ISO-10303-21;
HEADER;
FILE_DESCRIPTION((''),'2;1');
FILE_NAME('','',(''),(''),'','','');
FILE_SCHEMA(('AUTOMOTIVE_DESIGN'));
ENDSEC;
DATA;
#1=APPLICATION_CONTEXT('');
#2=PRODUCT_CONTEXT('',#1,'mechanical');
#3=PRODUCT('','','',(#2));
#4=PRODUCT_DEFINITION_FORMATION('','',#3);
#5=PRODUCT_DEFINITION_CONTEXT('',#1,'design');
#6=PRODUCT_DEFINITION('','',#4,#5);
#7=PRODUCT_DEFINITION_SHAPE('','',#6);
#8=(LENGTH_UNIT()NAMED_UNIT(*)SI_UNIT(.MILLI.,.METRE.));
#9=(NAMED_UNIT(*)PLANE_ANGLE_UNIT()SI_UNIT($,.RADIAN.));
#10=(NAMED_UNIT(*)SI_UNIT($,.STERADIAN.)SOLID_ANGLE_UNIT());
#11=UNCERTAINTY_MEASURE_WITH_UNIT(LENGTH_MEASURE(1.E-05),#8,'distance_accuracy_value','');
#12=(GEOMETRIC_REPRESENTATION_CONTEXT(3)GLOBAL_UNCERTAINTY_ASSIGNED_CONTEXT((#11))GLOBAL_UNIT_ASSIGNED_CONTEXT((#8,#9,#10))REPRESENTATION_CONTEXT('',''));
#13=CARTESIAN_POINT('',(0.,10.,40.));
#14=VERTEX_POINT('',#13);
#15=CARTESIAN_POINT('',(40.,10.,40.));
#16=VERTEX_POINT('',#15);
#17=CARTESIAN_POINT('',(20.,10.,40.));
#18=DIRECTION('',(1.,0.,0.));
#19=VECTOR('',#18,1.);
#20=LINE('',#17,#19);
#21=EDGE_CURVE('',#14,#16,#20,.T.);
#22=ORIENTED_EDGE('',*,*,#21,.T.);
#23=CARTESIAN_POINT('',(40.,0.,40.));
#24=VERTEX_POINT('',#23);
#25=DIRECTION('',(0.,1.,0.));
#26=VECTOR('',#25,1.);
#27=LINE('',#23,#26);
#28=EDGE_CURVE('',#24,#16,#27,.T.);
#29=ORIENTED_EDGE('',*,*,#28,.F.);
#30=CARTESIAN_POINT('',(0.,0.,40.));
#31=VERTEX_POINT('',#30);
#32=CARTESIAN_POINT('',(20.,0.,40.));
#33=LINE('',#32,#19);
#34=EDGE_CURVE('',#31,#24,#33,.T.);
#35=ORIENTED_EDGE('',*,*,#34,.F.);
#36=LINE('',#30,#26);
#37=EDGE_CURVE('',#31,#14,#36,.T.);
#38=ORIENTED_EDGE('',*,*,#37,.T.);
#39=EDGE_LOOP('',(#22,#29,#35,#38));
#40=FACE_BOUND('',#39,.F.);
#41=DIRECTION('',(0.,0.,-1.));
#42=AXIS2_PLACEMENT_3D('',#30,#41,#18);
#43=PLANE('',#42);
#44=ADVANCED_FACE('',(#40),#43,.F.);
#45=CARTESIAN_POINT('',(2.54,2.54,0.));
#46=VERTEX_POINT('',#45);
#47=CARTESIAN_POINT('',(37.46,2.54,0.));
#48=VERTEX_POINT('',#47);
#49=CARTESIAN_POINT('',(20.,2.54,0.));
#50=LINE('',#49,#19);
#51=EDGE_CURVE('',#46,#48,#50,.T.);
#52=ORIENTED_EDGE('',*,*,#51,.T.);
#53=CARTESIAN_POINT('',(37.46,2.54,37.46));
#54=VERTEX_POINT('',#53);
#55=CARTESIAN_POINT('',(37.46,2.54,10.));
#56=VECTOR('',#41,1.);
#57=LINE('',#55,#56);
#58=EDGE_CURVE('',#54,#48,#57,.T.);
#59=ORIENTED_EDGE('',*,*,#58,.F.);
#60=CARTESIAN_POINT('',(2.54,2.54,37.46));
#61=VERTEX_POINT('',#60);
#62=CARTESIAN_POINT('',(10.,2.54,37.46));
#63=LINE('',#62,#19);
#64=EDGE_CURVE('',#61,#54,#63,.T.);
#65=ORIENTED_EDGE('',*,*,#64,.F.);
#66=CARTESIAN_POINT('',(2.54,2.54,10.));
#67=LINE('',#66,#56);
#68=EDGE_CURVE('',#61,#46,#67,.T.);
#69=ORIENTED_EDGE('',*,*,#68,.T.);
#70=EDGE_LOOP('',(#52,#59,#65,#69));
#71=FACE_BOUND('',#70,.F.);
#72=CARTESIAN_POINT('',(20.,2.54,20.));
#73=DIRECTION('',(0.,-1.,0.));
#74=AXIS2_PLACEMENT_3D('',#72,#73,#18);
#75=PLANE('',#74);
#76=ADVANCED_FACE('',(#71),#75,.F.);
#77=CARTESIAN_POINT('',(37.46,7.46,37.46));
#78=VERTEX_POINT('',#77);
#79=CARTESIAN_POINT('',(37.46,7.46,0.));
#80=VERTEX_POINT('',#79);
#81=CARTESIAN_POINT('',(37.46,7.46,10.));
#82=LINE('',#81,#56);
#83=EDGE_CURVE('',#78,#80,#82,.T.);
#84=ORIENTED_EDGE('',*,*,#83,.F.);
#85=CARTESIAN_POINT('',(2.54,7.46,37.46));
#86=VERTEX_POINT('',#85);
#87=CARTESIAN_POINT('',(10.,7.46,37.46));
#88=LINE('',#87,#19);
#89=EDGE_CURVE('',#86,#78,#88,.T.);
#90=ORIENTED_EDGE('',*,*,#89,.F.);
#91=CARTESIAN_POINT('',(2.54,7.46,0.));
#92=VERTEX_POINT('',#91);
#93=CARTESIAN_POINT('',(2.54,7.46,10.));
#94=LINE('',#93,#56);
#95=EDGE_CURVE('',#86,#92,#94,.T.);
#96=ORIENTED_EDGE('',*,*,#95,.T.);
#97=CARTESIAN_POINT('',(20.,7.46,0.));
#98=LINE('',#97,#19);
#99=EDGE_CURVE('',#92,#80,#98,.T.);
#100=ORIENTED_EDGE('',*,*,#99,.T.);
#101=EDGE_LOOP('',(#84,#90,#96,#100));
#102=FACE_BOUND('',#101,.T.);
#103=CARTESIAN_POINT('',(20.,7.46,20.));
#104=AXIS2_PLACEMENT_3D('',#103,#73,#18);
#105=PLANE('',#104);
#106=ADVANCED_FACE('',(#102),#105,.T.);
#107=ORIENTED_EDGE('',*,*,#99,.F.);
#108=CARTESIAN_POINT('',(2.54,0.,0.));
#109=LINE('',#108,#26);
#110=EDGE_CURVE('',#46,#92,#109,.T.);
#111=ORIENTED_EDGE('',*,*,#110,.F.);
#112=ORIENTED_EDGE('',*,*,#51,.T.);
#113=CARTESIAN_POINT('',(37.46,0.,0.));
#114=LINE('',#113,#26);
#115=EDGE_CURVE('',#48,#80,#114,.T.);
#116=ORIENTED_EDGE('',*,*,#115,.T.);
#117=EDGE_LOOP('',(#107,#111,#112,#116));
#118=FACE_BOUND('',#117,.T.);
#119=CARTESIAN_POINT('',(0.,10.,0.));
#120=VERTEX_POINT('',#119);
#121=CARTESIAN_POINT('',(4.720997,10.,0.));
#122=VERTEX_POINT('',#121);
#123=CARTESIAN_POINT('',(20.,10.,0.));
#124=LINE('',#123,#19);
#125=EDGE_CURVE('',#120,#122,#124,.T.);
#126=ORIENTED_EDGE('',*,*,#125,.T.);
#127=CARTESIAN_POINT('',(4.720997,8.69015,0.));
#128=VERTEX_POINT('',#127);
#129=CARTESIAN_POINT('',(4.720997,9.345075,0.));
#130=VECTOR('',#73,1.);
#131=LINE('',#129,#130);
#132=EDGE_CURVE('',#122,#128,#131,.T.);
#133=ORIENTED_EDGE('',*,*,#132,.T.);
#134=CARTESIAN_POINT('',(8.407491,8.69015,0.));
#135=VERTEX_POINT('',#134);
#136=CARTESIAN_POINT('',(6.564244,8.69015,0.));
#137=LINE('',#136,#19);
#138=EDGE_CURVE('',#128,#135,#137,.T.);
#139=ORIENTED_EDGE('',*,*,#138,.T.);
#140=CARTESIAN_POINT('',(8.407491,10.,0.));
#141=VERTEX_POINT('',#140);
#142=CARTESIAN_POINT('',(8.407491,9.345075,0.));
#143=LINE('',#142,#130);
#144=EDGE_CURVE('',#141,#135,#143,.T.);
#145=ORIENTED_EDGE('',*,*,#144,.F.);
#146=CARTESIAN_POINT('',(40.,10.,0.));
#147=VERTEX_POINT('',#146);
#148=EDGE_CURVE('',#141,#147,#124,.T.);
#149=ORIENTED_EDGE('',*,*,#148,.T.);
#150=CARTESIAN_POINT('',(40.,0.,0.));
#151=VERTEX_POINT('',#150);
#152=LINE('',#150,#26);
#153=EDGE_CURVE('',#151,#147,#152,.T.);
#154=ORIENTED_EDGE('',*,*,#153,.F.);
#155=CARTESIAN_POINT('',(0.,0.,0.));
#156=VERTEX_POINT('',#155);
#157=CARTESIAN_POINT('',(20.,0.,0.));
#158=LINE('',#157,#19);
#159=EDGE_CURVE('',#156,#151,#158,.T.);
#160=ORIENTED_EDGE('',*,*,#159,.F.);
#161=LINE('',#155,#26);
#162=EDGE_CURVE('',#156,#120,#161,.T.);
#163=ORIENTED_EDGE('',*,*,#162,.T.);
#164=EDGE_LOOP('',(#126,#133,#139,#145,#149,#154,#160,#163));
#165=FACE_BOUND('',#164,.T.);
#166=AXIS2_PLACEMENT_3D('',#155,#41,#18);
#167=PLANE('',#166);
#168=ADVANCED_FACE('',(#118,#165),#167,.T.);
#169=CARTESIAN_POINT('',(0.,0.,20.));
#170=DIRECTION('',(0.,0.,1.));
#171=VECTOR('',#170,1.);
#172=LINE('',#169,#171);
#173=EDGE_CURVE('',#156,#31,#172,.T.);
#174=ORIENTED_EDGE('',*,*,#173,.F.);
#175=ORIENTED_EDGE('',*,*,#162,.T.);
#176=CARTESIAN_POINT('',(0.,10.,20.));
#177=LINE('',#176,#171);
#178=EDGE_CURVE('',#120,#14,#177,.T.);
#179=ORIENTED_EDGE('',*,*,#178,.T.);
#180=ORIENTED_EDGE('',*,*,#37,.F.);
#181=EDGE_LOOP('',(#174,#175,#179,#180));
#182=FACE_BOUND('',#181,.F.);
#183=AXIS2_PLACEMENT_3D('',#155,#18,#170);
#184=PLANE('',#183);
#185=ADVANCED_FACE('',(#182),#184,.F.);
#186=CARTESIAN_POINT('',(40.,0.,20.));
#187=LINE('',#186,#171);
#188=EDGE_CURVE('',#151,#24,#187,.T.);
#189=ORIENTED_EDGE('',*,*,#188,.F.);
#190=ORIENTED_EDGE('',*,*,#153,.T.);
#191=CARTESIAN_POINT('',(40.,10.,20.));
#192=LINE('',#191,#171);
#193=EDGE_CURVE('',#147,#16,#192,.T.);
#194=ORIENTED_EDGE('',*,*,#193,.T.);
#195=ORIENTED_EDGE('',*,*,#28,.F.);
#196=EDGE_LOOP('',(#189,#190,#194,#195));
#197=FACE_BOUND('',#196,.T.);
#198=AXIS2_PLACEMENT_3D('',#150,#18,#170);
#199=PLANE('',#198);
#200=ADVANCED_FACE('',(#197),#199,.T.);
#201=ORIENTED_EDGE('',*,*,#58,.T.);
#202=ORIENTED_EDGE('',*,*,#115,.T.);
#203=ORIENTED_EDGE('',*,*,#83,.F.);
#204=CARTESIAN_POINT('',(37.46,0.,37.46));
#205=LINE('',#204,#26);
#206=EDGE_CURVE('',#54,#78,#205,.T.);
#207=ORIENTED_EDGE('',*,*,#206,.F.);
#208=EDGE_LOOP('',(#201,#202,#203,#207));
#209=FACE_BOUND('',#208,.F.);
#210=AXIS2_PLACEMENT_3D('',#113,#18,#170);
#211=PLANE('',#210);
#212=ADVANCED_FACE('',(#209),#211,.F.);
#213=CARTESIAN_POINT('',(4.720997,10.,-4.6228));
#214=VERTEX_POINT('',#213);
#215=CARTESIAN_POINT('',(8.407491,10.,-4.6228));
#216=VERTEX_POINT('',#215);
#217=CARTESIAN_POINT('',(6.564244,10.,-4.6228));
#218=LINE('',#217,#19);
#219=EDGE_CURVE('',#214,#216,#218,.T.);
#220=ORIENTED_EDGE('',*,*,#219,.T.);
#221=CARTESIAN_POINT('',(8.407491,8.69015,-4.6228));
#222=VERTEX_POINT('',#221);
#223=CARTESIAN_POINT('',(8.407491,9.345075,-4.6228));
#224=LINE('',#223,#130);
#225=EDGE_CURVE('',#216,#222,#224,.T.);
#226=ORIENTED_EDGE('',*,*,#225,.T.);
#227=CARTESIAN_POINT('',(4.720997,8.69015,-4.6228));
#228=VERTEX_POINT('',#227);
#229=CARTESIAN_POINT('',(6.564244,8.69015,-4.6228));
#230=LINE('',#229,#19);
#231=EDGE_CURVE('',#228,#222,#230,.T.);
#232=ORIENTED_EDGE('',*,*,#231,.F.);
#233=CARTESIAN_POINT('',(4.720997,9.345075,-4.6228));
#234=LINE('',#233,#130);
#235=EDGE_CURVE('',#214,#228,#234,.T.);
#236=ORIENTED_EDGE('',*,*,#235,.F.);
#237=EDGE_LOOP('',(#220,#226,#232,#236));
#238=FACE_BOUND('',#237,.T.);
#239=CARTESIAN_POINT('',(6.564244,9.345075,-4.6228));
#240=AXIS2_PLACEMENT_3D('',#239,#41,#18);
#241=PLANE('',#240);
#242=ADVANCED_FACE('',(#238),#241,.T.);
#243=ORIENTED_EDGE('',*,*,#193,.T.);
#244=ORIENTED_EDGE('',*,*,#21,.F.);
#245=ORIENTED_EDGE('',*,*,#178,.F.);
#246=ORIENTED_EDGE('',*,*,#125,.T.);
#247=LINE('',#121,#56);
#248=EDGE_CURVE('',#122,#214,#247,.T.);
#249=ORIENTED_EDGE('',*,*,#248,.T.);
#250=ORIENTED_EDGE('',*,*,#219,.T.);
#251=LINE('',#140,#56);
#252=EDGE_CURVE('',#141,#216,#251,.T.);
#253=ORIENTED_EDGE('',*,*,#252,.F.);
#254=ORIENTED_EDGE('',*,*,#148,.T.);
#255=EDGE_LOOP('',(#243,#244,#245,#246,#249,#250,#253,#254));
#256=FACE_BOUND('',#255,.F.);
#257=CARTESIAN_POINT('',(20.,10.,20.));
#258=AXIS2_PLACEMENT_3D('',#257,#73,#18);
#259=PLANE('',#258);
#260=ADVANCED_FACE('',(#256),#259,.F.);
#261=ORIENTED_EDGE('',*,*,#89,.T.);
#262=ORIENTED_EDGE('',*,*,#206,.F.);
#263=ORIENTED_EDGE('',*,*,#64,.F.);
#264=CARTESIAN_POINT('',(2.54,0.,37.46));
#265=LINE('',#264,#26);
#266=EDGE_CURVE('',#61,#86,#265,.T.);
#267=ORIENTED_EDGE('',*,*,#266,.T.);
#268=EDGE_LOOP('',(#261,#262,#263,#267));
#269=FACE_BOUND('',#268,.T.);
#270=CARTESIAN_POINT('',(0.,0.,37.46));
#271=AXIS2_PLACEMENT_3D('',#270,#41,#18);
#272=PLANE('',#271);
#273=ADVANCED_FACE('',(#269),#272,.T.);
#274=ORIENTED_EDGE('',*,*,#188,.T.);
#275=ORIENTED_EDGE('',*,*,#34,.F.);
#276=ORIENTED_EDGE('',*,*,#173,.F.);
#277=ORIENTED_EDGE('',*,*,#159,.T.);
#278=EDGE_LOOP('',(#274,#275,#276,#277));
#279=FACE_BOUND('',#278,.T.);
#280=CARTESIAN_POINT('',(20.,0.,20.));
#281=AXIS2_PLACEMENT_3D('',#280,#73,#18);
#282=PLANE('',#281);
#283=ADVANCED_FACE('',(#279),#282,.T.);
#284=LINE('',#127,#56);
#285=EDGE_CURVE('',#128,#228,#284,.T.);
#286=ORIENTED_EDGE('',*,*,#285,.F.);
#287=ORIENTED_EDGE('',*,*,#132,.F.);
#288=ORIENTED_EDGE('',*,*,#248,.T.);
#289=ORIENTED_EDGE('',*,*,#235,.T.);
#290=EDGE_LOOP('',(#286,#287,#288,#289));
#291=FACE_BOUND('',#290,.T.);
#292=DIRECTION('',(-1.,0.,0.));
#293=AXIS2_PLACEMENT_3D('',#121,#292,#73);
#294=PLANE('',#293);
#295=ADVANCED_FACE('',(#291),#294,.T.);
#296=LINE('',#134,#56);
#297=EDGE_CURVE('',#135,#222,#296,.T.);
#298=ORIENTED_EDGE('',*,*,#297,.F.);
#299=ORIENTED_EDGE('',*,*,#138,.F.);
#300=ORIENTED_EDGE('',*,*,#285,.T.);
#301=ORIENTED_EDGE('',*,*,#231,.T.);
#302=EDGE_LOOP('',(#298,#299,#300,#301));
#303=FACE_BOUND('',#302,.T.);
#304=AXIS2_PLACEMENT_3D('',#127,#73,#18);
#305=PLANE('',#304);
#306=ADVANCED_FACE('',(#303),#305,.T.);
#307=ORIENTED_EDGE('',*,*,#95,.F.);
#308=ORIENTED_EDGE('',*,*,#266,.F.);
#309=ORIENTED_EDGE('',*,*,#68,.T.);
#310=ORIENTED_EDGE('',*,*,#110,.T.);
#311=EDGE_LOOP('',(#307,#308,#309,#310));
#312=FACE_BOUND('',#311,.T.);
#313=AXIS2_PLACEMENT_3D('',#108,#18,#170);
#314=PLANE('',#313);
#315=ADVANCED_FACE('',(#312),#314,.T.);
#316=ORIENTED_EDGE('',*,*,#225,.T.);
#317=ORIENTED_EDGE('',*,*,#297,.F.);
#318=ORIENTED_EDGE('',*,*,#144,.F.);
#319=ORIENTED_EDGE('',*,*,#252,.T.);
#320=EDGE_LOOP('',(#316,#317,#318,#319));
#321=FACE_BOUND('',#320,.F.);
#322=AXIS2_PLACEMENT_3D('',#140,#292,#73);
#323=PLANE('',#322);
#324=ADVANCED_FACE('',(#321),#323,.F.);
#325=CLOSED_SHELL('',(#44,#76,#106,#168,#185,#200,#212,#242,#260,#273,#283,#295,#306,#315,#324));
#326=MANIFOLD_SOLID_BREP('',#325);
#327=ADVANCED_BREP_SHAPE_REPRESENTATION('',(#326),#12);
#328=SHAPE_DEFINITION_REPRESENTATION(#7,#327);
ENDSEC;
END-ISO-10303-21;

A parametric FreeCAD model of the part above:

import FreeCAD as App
import Part
import Sketcher

V = App.Vector
Q = App.Units.Quantity


def faces_at(feature, points):
    """Names of the faces that lie closest to the given points."""
    faces = feature.Shape.Faces
    near = lambda p: min(range(len(faces)), key=lambda i: faces[i].distToShape(Part.Vertex(*p))[0])
    return sorted({f"Face{near(p) + 1}" for p in points})

doc = App.newDocument("Part")
body = doc.addObject("PartDesign::Body", "Body")

# Sketch on XZ plane
sketch1 = doc.addObject("Sketcher::SketchObject", "Sketch")
body.addObject(sketch1)
sketch1.AttachmentSupport = (doc.XZ_Plane, [""])
sketch1.MapMode = "FlatFace"
sketch1.addGeometry(Part.LineSegment(V(0, 40, 0), V(0, 0, 0)), False)
sketch1.addGeometry(Part.LineSegment(V(0, 0, 0), V(40, 0, 0)), False)
sketch1.addGeometry(Part.LineSegment(V(40, 0, 0), V(40, 40, 0)), False)
sketch1.addGeometry(Part.LineSegment(V(40, 40, 0), V(0, 40, 0)), False)
sketch1.addConstraint(Sketcher.Constraint("Coincident", 0, 2, 1, 1))
sketch1.addConstraint(Sketcher.Constraint("Coincident", 1, 2, 2, 1))
sketch1.addConstraint(Sketcher.Constraint("Coincident", 2, 2, 3, 1))
sketch1.addConstraint(Sketcher.Constraint("Coincident", 3, 2, 0, 1))
sketch1.addConstraint(Sketcher.Constraint("Vertical", 0))
sketch1.addConstraint(Sketcher.Constraint("Horizontal", 1))
sketch1.addConstraint(Sketcher.Constraint("Vertical", 2))
sketch1.addConstraint(Sketcher.Constraint("Horizontal", 3))
sketch1.addConstraint(Sketcher.Constraint("Coincident", 0, 2, -1, 1))
sketch1.addConstraint(Sketcher.Constraint("Equal", 3, 0))
sketch1.addConstraint(Sketcher.Constraint("DistanceX", 1, 1, 1, 2, Q("40 mm")))
pad1 = doc.addObject("PartDesign::Pad", "Pad")
body.addObject(pad1)
pad1.Profile = sketch1
pad1.Length = 10
pad1.Reversed = True
doc.recompute()

thickness = doc.addObject("PartDesign::Thickness", "Thickness")
body.addObject(thickness)
thickness.Base = (pad1, faces_at(pad1, [(20, 5, 0)]))
thickness.Value = 2.54
thickness.Reversed = True
thickness.Join = "Arc"

# Sketch on XY plane
sketch2 = doc.addObject("Sketcher::SketchObject", "Sketch001")
body.addObject(sketch2)
sketch2.AttachmentSupport = (doc.XY_Plane, [""])
sketch2.MapMode = "FlatFace"
sketch2.addGeometry(Part.LineSegment(V(4.720997, 8.69015, 0), V(4.720997, 10, 0)), False)
sketch2.addGeometry(Part.LineSegment(V(4.720997, 10, 0), V(8.407491, 10, 0)), False)
sketch2.addGeometry(Part.LineSegment(V(8.407491, 10, 0), V(8.407491, 8.69015, 0)), False)
sketch2.addGeometry(Part.LineSegment(V(8.407491, 8.69015, 0), V(4.720997, 8.69015, 0)), False)
sketch2.addConstraint(Sketcher.Constraint("Coincident", 0, 2, 1, 1))
sketch2.addConstraint(Sketcher.Constraint("Coincident", 1, 2, 2, 1))
sketch2.addConstraint(Sketcher.Constraint("Coincident", 2, 2, 3, 1))
sketch2.addConstraint(Sketcher.Constraint("Coincident", 3, 2, 0, 1))
sketch2.addConstraint(Sketcher.Constraint("Vertical", 0))
sketch2.addConstraint(Sketcher.Constraint("Horizontal", 1))
sketch2.addConstraint(Sketcher.Constraint("Vertical", 2))
sketch2.addConstraint(Sketcher.Constraint("Horizontal", 3))
sketch2.addConstraint(Sketcher.Constraint("DistanceY", -1, 1, 0, 2, Q("10 mm")))
sketch2.addConstraint(Sketcher.Constraint("DistanceY", 0, 1, 0, 2, Q("1.30985 mm")))
sketch2.addConstraint(Sketcher.Constraint("DistanceX", 1, 1, 1, 2, Q("3.686494 mm")))
sketch2.addConstraint(Sketcher.Constraint("DistanceX", -1, 1, 1, 2, Q("8.407491 mm")))
pad2 = doc.addObject("PartDesign::Pad", "Pad001")
body.addObject(pad2)
pad2.Profile = sketch2
pad2.Length = 4.6228
pad2.Reversed = True

doc.recompute()
